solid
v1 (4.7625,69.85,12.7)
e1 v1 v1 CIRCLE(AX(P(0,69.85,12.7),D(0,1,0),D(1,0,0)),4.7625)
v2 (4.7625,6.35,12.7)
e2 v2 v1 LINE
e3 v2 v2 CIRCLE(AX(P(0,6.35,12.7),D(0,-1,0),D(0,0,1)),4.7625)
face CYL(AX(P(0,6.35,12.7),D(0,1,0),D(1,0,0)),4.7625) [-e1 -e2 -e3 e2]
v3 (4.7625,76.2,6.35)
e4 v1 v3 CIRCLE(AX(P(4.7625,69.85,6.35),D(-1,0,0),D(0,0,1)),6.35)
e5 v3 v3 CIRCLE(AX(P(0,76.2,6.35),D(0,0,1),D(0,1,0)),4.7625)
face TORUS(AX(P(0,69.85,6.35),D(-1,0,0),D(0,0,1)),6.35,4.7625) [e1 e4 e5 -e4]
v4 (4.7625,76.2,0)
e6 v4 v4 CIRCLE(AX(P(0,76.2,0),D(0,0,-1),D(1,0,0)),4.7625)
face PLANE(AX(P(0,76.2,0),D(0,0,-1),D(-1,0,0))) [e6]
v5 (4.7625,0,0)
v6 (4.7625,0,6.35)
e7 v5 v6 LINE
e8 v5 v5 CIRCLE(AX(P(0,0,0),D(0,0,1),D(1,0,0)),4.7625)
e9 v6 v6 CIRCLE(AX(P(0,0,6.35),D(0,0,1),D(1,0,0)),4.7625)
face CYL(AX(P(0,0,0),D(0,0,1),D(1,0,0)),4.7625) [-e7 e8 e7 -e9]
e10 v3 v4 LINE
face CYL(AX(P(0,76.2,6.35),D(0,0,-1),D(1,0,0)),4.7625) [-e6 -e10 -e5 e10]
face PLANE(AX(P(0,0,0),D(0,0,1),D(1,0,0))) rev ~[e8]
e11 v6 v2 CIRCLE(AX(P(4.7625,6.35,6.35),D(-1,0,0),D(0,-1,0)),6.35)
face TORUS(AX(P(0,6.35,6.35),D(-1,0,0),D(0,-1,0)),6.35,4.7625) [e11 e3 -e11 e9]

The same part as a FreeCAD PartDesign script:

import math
import FreeCAD as App
import Part
import Sketcher
Q = App.Units.Quantity

doc = App.newDocument("Part")
params = doc.addObject("Spreadsheet::Sheet", "Params")
for row, (alias, value) in enumerate([
    ("sketch1_diameter", "0.375 in"),
    ("sketch2_radius", "0.25 in"),
    ("sketch2_width", "2.5 in"),
    ("sketch2_height", "0.25 in"),
], start=1):
    params.set(f"A{row}", alias)
    params.set(f"B{row}", "=" + value)
    params.setAlias(f"B{row}", alias)

body = doc.addObject("PartDesign::Body", "Body")

# Sketch on XY plane
sketch1 = body.newObject("Sketcher::SketchObject", "Sketch")
sketch1.AttachmentSupport = (doc.getObject("XY_Plane"), [""])
sketch1.MapMode = "FlatFace"
sketch1.addGeometry(Part.Circle(App.Vector(0, 0, 0), App.Vector(0, 0, 1), 4.8), False)
sketch1.addConstraint([
    Sketcher.Constraint("Coincident", 0, 3, -1, 1),
    Sketcher.Constraint("Diameter", 0, Q("0.375 in")),
])
sketch1.setExpression("Constraints[1]", "Params.sketch1_diameter")

# Sketch on YZ plane
sketch2 = body.newObject("Sketcher::SketchObject", "Sketch001")
sketch2.AttachmentSupport = (doc.getObject("YZ_Plane"), [""])
sketch2.MapMode = "FlatFace"
sketch2.addGeometry([
    Part.LineSegment(App.Vector(0, 0, 0), App.Vector(0, 6, 0)),  # 0
    Part.ArcOfCircle(Part.Circle(App.Vector(6, 6, 0), App.Vector(0, 0, 1), 6), math.radians(90), math.radians(180)),  # 1
    Part.LineSegment(App.Vector(6, 13, 0), App.Vector(70, 13, 0)),  # 2
    Part.ArcOfCircle(Part.Circle(App.Vector(70, 6, 0), App.Vector(0, 0, 1), 6), math.radians(0), math.radians(90)),  # 3
    Part.LineSegment(App.Vector(76, 6, 0), App.Vector(76, 0, 0)),  # 4
], False)
sketch2.addConstraint([
    Sketcher.Constraint("Tangent", 0, 2, 1, 2),
    Sketcher.Constraint("Tangent", 1, 1, 2, 1),
    Sketcher.Constraint("Tangent", 2, 2, 3, 2),
    Sketcher.Constraint("Tangent", 3, 1, 4, 1),
    Sketcher.Constraint("Vertical", 0),
    Sketcher.Constraint("Horizontal", 2),
    Sketcher.Constraint("Vertical", 4),
    Sketcher.Constraint("Coincident", 0, 1, -1, 1),
    Sketcher.Constraint("Equal", 1, 3),
    Sketcher.Constraint("PointOnObject", 4, 2, -1),
    Sketcher.Constraint("Radius", 1, Q("0.25 in")),
    Sketcher.Constraint("DistanceX", 2, 1, 2, 2, Q("2.5 in")),
    Sketcher.Constraint("DistanceY", 0, 1, 0, 2, Q("0.25 in")),
])
sketch2.setExpression("Constraints[10]", "Params.sketch2_radius")
sketch2.setExpression("Constraints[11]", "Params.sketch2_width")
sketch2.setExpression("Constraints[12]", "Params.sketch2_height")
doc.recompute()

additivepipe = body.newObject("PartDesign::AdditivePipe", "AdditivePipe")
additivepipe.Profile = sketch1
additivepipe.Spine = (sketch2, ["Edge1", "Edge2", "Edge3", "Edge4", "Edge5"])

doc.recompute()
